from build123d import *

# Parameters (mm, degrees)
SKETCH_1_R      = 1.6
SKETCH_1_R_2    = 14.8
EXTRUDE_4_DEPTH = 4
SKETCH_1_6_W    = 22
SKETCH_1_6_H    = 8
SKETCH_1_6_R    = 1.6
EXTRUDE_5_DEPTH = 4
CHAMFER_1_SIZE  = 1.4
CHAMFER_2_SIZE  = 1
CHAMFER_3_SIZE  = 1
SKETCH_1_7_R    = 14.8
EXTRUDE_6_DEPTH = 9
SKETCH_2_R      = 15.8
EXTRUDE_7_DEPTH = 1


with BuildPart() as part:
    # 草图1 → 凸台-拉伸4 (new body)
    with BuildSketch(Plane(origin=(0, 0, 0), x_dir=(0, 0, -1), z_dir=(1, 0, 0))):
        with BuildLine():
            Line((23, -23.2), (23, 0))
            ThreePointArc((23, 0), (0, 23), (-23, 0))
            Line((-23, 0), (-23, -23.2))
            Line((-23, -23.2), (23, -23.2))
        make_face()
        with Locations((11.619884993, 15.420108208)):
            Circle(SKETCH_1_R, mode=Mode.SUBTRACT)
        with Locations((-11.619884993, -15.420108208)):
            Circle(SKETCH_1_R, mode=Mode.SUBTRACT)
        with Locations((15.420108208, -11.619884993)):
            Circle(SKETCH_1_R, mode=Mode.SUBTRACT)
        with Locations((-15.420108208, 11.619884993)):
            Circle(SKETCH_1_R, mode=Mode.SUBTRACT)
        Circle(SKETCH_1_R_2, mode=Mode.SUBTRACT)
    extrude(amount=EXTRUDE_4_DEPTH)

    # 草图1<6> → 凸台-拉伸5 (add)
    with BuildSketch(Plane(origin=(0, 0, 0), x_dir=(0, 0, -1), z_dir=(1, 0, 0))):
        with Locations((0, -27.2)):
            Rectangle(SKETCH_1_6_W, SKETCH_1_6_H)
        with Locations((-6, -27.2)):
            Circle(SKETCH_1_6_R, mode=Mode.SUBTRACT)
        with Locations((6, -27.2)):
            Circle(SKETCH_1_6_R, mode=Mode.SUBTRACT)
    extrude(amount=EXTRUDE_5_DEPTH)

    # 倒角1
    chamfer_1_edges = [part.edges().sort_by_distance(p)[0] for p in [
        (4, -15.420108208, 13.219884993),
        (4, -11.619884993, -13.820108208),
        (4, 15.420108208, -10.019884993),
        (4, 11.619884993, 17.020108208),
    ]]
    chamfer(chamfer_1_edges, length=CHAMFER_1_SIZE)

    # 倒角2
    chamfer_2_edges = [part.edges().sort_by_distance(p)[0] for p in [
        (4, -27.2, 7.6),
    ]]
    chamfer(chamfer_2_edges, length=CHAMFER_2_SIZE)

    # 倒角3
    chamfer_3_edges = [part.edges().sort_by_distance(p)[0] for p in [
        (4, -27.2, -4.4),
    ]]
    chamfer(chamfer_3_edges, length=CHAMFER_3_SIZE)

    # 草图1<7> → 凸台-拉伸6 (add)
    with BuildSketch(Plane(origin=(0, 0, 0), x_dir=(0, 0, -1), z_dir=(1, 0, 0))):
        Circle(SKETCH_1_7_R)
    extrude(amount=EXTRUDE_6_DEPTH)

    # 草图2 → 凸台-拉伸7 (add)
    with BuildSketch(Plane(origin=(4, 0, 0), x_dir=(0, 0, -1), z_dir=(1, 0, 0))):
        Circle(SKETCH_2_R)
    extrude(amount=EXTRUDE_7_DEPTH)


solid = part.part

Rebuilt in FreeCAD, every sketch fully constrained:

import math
import FreeCAD as App
import Part
import Sketcher
from FreeCAD import Vector


def edges_at(feature, points):
    """Names of the edges that pass closest to the given points."""
    edges = feature.Shape.Edges
    near = lambda p: min(range(len(edges)), key=lambda i: edges[i].distToShape(Part.Vertex(*p))[0])
    return sorted({f"Edge{near(p) + 1}" for p in points})

doc = App.newDocument("Part")
body = doc.addObject("PartDesign::Body", "Body")

sketch1 = doc.addObject("Sketcher::SketchObject", "Sketch")
body.addObject(sketch1)
sketch1.AttachmentSupport = (doc.YZ_Plane, [""])
sketch1.MapMode = "FlatFace"
sketch1.addGeometry(Part.LineSegment(Vector(-23.2, -23, 0), Vector(0, -23, 0)), False)
sketch1.addGeometry(Part.ArcOfCircle(Part.Circle(Vector(0, 0, 0), Vector(0, 0, 1), 23), math.radians(-90), math.radians(90)), False)
sketch1.addGeometry(Part.LineSegment(Vector(0, 23, 0), Vector(-23.2, 23, 0)), False)
sketch1.addGeometry(Part.LineSegment(Vector(-23.2, 23, 0), Vector(-23.2, -23, 0)), False)
sketch1.addGeometry(Part.Circle(Vector(-15.4, 11.6, 0), Vector(0, 0, 1), 1.6), False)
sketch1.addGeometry(Part.Circle(Vector(-11.6, -15.4, 0), Vector(0, 0, 1), 1.6), False)
sketch1.addGeometry(Part.Circle(Vector(11.6, 15.4, 0), Vector(0, 0, 1), 1.6), False)
sketch1.addGeometry(Part.Circle(Vector(0, 0, 0), Vector(0, 0, 1), 14.8), False)
sketch1.addGeometry(Part.Circle(Vector(15.4, -11.6, 0), Vector(0, 0, 1), 1.6), False)
sketch1.addConstraint(Sketcher.Constraint("Tangent", 0, 2, 1, 1))
sketch1.addConstraint(Sketcher.Constraint("Tangent", 1, 2, 2, 1))
sketch1.addConstraint(Sketcher.Constraint("Coincident", 2, 2, 3, 1))
sketch1.addConstraint(Sketcher.Constraint("Coincident", 3, 2, 0, 1))
sketch1.addConstraint(Sketcher.Constraint("Horizontal", 0))
sketch1.addConstraint(Sketcher.Constraint("Horizontal", 2))
sketch1.addConstraint(Sketcher.Constraint("Vertical", 3))
sketch1.addConstraint(Sketcher.Constraint("Coincident", 1, 3, -1, 1))
sketch1.addConstraint(Sketcher.Constraint("Coincident", 7, 3, -1, 1))
sketch1.addConstraint(Sketcher.Constraint("Equal", 4, 5))
sketch1.addConstraint(Sketcher.Constraint("Equal", 5, 6))
sketch1.addConstraint(Sketcher.Constraint("Equal", 6, 8))
sketch1.addConstraint(Sketcher.Constraint("Symmetric", 5, 3, 6, 3, -1, 1))
sketch1.addConstraint(Sketcher.Constraint("Symmetric", 4, 3, 8, 3, -1, 1))
sketch1.addConstraint(Sketcher.Constraint("Radius", 1, 23.0))
sketch1.addConstraint(Sketcher.Constraint("Diameter", 4, 3.2))
sketch1.addConstraint(Sketcher.Constraint("Diameter", 7, 29.6))
sketch1.addConstraint(Sketcher.Constraint("DistanceX", 0, 1, 0, 2, 23.2))
sketch1.addConstraint(Sketcher.Constraint("DistanceX", 4, 3, -1, 1, 15.420108))
sketch1.addConstraint(Sketcher.Constraint("DistanceY", 5, 3, -1, 1, 15.420108))
sketch1.addConstraint(Sketcher.Constraint("DistanceX", 5, 3, 6, 3, 23.23977))
sketch1.addConstraint(Sketcher.Constraint("DistanceY", 8, 3, 4, 3, 23.23977))
pad1 = doc.addObject("PartDesign::Pad", "Pad")
body.addObject(pad1)
pad1.Profile = sketch1
pad1.Length = 4

sketch2 = doc.addObject("Sketcher::SketchObject", "Sketch001")
body.addObject(sketch2)
sketch2.AttachmentSupport = (doc.YZ_Plane, [""])
sketch2.MapMode = "FlatFace"
sketch2.addGeometry(Part.LineSegment(Vector(-23.2, 11, 0), Vector(-31.2, 11, 0)), False)
sketch2.addGeometry(Part.LineSegment(Vector(-31.2, 11, 0), Vector(-31.2, -11, 0)), False)
sketch2.addGeometry(Part.LineSegment(Vector(-31.2, -11, 0), Vector(-23.2, -11, 0)), False)
sketch2.addGeometry(Part.LineSegment(Vector(-23.2, -11, 0), Vector(-23.2, 11, 0)), False)
sketch2.addGeometry(Part.Circle(Vector(-27.2, 6, 0), Vector(0, 0, 1), 1.6), False)
sketch2.addGeometry(Part.Circle(Vector(-27.2, -6, 0), Vector(0, 0, 1), 1.6), False)
sketch2.addConstraint(Sketcher.Constraint("Coincident", 0, 2, 1, 1))
sketch2.addConstraint(Sketcher.Constraint("Coincident", 1, 2, 2, 1))
sketch2.addConstraint(Sketcher.Constraint("Coincident", 2, 2, 3, 1))
sketch2.addConstraint(Sketcher.Constraint("Coincident", 3, 2, 0, 1))
sketch2.addConstraint(Sketcher.Constraint("Horizontal", 0))
sketch2.addConstraint(Sketcher.Constraint("Vertical", 1))
sketch2.addConstraint(Sketcher.Constraint("Horizontal", 2))
sketch2.addConstraint(Sketcher.Constraint("Vertical", 3))
sketch2.addConstraint(Sketcher.Constraint("Equal", 4, 5))
sketch2.addConstraint(Sketcher.Constraint("Symmetric", 4, 3, 5, 3, -1))
sketch2.addConstraint(Sketcher.Constraint("Diameter", 4, 3.2))
sketch2.addConstraint(Sketcher.Constraint("DistanceX", 0, 2, 0, 1, 8.0))
sketch2.addConstraint(Sketcher.Constraint("DistanceY", 1, 2, 1, 1, 22.0))
sketch2.addConstraint(Sketcher.Constraint("DistanceY", -1, 1, 4, 3, 6.0))
sketch2.addConstraint(Sketcher.Constraint("DistanceY", -1, 1, 0, 2, 11.0))
sketch2.addConstraint(Sketcher.Constraint("DistanceX", 0, 2, 4, 3, 4.0))
sketch2.addConstraint(Sketcher.Constraint("DistanceX", 4, 3, -1, 1, 27.2))
pad2 = doc.addObject("PartDesign::Pad", "Pad001")
body.addObject(pad2)
pad2.Profile = sketch2
pad2.Length = 4
doc.recompute()

chamfer = doc.addObject("PartDesign::Chamfer", "Chamfer")
body.addObject(chamfer)
chamfer.Base = (pad2, edges_at(pad2, [
    (4, -15.42, 13.22),
    (4, -11.62, -13.82),
    (4, 15.42, -10.02),
    (4, 11.62, 17.02),
]))
chamfer.Size = 1.4
doc.recompute()

chamfer2 = doc.addObject("PartDesign::Chamfer", "Chamfer001")
body.addObject(chamfer2)
chamfer2.Base = (chamfer, edges_at(chamfer, [(4, -27.2, 7.6)]))
chamfer2.Size = 1
doc.recompute()

chamfer3 = doc.addObject("PartDesign::Chamfer", "Chamfer002")
body.addObject(chamfer3)
chamfer3.Base = (chamfer2, edges_at(chamfer2, [(4, -27.2, -4.4)]))
chamfer3.Size = 1

sketch3 = doc.addObject("Sketcher::SketchObject", "Sketch002")
body.addObject(sketch3)
sketch3.AttachmentSupport = (doc.YZ_Plane, [""])
sketch3.MapMode = "FlatFace"
sketch3.addGeometry(Part.Circle(Vector(0, 0, 0), Vector(0, 0, 1), 15), False)
sketch3.addConstraint(Sketcher.Constraint("Coincident", 0, 3, -1, 1))
sketch3.addConstraint(Sketcher.Constraint("Diameter", 0, 29.6))
pad3 = doc.addObject("PartDesign::Pad", "Pad002")
body.addObject(pad3)
pad3.Profile = sketch3
pad3.Length = 9

sketch4 = doc.addObject("Sketcher::SketchObject", "Sketch003")
body.addObject(sketch4)
sketch4.AttachmentSupport = (doc.YZ_Plane, [""])
sketch4.MapMode = "FlatFace"
sketch4.AttachmentOffset = App.Placement(Vector(0, 0, 4), App.Rotation())
sketch4.addGeometry(Part.Circle(Vector(0, 0, 0), Vector(0, 0, 1), 16), False)
sketch4.addConstraint(Sketcher.Constraint("Coincident", 0, 3, -1, 1))
sketch4.addConstraint(Sketcher.Constraint("Diameter", 0, 31.6))
pad4 = doc.addObject("PartDesign::Pad", "Pad003")
body.addObject(pad4)
pad4.Profile = sketch4
pad4.Length = 1

doc.recompute()
